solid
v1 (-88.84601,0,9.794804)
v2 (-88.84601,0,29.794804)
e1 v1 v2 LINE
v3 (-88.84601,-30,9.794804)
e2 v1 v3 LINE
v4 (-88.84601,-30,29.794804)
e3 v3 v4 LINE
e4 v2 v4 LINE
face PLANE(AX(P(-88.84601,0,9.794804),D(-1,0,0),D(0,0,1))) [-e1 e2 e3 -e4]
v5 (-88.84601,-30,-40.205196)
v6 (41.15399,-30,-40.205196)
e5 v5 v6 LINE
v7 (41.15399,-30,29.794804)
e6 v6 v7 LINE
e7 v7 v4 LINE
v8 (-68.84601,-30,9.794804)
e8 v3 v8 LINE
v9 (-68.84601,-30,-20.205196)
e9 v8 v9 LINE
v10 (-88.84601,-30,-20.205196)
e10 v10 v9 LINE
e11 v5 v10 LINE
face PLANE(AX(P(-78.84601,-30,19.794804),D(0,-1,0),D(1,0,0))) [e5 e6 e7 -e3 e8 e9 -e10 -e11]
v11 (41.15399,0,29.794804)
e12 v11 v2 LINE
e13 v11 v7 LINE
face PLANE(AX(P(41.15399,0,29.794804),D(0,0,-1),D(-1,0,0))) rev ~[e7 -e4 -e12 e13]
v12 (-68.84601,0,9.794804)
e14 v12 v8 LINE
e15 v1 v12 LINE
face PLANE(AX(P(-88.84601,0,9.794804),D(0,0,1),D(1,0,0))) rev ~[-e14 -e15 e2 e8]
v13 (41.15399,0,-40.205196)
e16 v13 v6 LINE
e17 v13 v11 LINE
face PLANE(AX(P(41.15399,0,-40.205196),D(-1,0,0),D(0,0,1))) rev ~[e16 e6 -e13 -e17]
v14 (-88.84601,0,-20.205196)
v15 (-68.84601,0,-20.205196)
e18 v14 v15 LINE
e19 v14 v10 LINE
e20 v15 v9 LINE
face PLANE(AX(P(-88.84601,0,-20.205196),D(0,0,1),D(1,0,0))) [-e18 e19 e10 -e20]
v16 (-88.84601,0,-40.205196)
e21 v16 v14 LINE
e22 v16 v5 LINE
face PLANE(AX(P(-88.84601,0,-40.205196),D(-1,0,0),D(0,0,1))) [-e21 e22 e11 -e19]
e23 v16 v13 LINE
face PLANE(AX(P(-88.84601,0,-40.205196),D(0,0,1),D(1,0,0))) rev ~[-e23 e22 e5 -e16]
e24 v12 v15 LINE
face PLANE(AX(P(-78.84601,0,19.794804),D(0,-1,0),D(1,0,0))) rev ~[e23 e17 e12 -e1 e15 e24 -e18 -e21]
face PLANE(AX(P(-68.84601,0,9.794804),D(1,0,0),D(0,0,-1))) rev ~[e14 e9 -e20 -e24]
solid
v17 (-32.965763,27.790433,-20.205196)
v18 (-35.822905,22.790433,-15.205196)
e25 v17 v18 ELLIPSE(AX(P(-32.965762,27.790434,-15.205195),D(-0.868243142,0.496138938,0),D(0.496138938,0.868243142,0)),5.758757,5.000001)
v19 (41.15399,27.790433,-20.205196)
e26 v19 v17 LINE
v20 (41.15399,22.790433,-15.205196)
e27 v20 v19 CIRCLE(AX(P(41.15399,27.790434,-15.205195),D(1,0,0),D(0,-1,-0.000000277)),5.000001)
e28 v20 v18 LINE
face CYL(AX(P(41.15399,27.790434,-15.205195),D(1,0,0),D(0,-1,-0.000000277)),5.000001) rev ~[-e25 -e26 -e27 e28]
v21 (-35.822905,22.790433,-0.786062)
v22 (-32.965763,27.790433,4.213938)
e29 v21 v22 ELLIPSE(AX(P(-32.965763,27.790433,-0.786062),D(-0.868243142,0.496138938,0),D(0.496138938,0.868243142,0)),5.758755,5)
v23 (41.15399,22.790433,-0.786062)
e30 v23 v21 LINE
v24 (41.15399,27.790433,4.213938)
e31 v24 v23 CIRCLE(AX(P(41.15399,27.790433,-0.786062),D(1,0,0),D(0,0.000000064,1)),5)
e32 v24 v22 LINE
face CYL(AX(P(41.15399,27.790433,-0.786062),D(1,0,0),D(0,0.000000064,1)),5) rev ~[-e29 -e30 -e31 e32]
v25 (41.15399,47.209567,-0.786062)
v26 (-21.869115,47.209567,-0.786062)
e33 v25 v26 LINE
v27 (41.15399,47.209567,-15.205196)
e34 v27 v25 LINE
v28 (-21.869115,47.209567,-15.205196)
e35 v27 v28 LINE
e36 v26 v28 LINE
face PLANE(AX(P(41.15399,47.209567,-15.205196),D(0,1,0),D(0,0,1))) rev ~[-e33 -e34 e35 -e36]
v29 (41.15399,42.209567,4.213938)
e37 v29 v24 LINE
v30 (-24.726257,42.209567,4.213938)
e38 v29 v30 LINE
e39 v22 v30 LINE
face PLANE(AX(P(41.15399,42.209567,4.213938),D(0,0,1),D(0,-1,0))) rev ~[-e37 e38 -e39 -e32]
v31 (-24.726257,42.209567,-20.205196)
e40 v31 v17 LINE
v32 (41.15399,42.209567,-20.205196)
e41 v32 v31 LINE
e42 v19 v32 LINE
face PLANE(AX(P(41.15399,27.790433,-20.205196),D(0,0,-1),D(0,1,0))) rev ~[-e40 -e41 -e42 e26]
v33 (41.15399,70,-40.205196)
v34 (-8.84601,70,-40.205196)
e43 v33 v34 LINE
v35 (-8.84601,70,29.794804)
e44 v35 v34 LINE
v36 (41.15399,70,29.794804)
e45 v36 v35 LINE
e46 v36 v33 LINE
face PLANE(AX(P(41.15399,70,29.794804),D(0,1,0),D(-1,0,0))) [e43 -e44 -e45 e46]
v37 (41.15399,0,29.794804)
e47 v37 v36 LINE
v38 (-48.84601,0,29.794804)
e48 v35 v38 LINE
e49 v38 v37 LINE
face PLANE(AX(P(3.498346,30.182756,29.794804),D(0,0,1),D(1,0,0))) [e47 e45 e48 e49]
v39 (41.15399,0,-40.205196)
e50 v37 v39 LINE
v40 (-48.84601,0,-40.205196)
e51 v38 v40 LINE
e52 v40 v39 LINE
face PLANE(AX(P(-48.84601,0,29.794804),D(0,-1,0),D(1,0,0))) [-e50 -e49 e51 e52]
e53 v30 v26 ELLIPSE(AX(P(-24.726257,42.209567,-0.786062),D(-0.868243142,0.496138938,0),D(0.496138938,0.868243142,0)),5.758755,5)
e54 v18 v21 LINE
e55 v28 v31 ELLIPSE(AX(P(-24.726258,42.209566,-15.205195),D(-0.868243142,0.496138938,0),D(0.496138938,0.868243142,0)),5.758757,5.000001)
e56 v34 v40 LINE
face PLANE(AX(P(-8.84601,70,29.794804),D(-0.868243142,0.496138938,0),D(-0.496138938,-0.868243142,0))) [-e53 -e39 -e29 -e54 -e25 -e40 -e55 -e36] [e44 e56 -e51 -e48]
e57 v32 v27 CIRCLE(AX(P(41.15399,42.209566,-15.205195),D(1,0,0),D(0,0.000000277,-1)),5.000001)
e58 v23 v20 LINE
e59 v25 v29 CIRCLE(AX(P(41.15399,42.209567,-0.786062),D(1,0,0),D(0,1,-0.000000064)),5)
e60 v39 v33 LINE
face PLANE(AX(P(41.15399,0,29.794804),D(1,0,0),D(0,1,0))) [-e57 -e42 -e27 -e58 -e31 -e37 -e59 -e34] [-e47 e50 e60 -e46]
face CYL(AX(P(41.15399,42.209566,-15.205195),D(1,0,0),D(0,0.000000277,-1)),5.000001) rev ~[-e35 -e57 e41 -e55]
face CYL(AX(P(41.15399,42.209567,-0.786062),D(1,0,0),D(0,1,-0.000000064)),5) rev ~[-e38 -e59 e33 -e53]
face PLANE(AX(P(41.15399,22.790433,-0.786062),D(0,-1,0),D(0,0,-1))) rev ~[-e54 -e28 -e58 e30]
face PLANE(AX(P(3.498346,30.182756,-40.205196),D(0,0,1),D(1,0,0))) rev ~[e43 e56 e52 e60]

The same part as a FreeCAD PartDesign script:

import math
import FreeCAD as App
import Part
import Sketcher


def add_polygon(sketch, points):
    """Adds a closed chain of lines whose ends are joined by coincident constraints."""
    first, n = sketch.GeometryCount, len(points)
    for a, b in zip(points, points[1:] + points[:1]):
        sketch.addGeometry(Part.LineSegment(App.Vector(*a, 0), App.Vector(*b, 0)), False)
    for i in range(n):
        sketch.addConstraint(Sketcher.Constraint("Coincident", first + i, 2, first + (i + 1) % n, 1))

doc = App.newDocument("Part")
params = doc.addObject("Spreadsheet::Sheet", "Params")
for row, (alias, value) in enumerate([
    ("sketch1_width", "20 mm"),
    ("sketch1_width2", "130 mm"),
    ("sketch1_height", "30 mm"),
    ("pad1_length", "30 mm"),
    ("sketch2_width", "90 mm"),
    ("sketch2_width2", "50 mm"),
    ("sketch2_height", "70 mm"),
    ("pad2_length", "70 mm"),
    ("sketch3_radius", "5 mm"),
    ("pocket1_length", "1000 mm"),
], start=1):
    params.set(f"A{row}", alias)
    params.set(f"B{row}", "=" + value)
    params.setAlias(f"B{row}", alias)

body = doc.addObject("PartDesign::Body", "Body")

sketch1 = doc.addObject("Sketcher::SketchObject", "Sketch")
body.addObject(sketch1)
sketch1.AttachmentSupport = (doc.XZ_Plane, [""])
sketch1.MapMode = "FlatFace"
add_polygon(sketch1, [(-89, 30), (-89, 10), (-69, 10), (-69, -20), (-89, -20), (-89, -40), (41, -40), (41, 30)])
sketch1.addConstraint([
    Sketcher.Constraint("Vertical", 0),
    Sketcher.Constraint("Horizontal", 1),
    Sketcher.Constraint("Vertical", 2),
    Sketcher.Constraint("Horizontal", 3),
    Sketcher.Constraint("Vertical", 4),
    Sketcher.Constraint("Horizontal", 5),
    Sketcher.Constraint("Vertical", 6),
    Sketcher.Constraint("Horizontal", 7),
    Sketcher.Constraint("Vertical", 0, 2, 3, 2),
    Sketcher.Constraint("Equal", 3, 0),
    Sketcher.Constraint("Equal", 0, 4),
    Sketcher.Constraint("DistanceX", 1, 1, 1, 2, 20.0),
    Sketcher.Constraint("DistanceX", 5, 1, 5, 2, 130.0),
    Sketcher.Constraint("DistanceY", 2, 2, 2, 1, 30.0),
    Sketcher.Constraint("DistanceX", 0, 2, -1, 1, 88.84601),
    Sketcher.Constraint("DistanceY", -1, 1, 0, 2, 9.794804),
])
sketch1.setExpression("Constraints[19]", "Params.sketch1_width")
sketch1.setExpression("Constraints[20]", "Params.sketch1_width2")
sketch1.setExpression("Constraints[21]", "Params.sketch1_height")
pad1 = doc.addObject("PartDesign::Pad", "Pad")
body.addObject(pad1)
pad1.Profile = sketch1
pad1.setExpression("Length", "Params.pad1_length")
body2 = doc.addObject("PartDesign::Body", "Body001")

sketch2 = doc.addObject("Sketcher::SketchObject", "Sketch001")
body2.addObject(sketch2)
sketch2.AttachmentSupport = (doc.getObject("XY_Plane001"), [""])
sketch2.MapMode = "FlatFace"
sketch2.AttachmentOffset = App.Placement(App.Vector(0, 0, 29.794804), App.Rotation())
add_polygon(sketch2, [(-49, 0), (41, 0), (41, 70), (-9, 70)])
sketch2.addConstraint([
    Sketcher.Constraint("Horizontal", 0),
    Sketcher.Constraint("Vertical", 1),
    Sketcher.Constraint("Horizontal", 2),
    Sketcher.Constraint("PointOnObject", 0, 2, -1),
    Sketcher.Constraint("DistanceX", 0, 1, 0, 2, 90.0),
    Sketcher.Constraint("DistanceX", 2, 2, 2, 1, 50.0),
    Sketcher.Constraint("DistanceY", 1, 1, 1, 2, 70.0),
    Sketcher.Constraint("DistanceX", -1, 1, 0, 2, 41.15399),
])
sketch2.setExpression("Constraints[8]", "Params.sketch2_width")
sketch2.setExpression("Constraints[9]", "Params.sketch2_width2")
sketch2.setExpression("Constraints[10]", "Params.sketch2_height")
pad2 = doc.addObject("PartDesign::Pad", "Pad001")
body2.addObject(pad2)
pad2.Profile = sketch2
pad2.setExpression("Length", "Params.pad2_length")
pad2.Reversed = True

sketch3 = doc.addObject("Sketcher::SketchObject", "Sketch002")
body2.addObject(sketch3)
sketch3.AttachmentSupport = (doc.getObject("YZ_Plane001"), [""])
sketch3.MapMode = "FlatFace"
sketch3.AttachmentOffset = App.Placement(App.Vector(0, 0, 41.15399), App.Rotation())
sketch3.addGeometry([
    Part.ArcOfCircle(Part.Circle(App.Vector(27.8, -0.8, 0), App.Vector(0, 0, 1), 5), math.radians(90), math.radians(180)),
    Part.LineSegment(App.Vector(22.8, -0.8, 0), App.Vector(22.8, -15.2, 0)),
    Part.ArcOfCircle(Part.Circle(App.Vector(27.8, -15.2, 0), App.Vector(0, 0, 1), 5), math.radians(-180), math.radians(-90)),
    Part.LineSegment(App.Vector(27.8, -20.2, 0), App.Vector(42.2, -20.2, 0)),
    Part.ArcOfCircle(Part.Circle(App.Vector(42.2, -15.2, 0), App.Vector(0, 0, 1), 5), math.radians(-90), math.radians(0)),
    Part.LineSegment(App.Vector(47.2, -15.2, 0), App.Vector(47.2, -0.8, 0)),
    Part.ArcOfCircle(Part.Circle(App.Vector(42.2, -0.8, 0), App.Vector(0, 0, 1), 5), math.radians(0), math.radians(90)),
    Part.LineSegment(App.Vector(42.2, 4.2, 0), App.Vector(27.8, 4.2, 0)),
], False)
sketch3.addConstraint([
    Sketcher.Constraint("Tangent", 0, 2, 1, 1),
    Sketcher.Constraint("Tangent", 1, 2, 2, 1),
    Sketcher.Constraint("Tangent", 2, 2, 3, 1),
    Sketcher.Constraint("Tangent", 3, 2, 4, 1),
    Sketcher.Constraint("Tangent", 4, 2, 5, 1),
    Sketcher.Constraint("Tangent", 5, 2, 6, 1),
    Sketcher.Constraint("Tangent", 6, 2, 7, 1),
    Sketcher.Constraint("Tangent", 7, 2, 0, 1),
    Sketcher.Constraint("Vertical", 1),
    Sketcher.Constraint("Horizontal", 3),
    Sketcher.Constraint("Vertical", 5),
    Sketcher.Constraint("Horizontal", 7),
    Sketcher.Constraint("Equal", 0, 2),
    Sketcher.Constraint("Equal", 2, 4),
    Sketcher.Constraint("Equal", 4, 6),
    Sketcher.Constraint("Equal", 7, 1),
    Sketcher.Constraint("Radius", 0, 5.0),
    Sketcher.Constraint("DistanceX", 3, 1, 3, 2, 14.419134),
    Sketcher.Constraint("DistanceY", 0, 3, -1, 1, 0.786062),
    Sketcher.Constraint("DistanceX", -1, 1, 0, 3, 27.790433),
])
sketch3.setExpression("Constraints[16]", "Params.sketch3_radius")
pocket1 = doc.addObject("PartDesign::Pocket", "Pocket")
body2.addObject(pocket1)
pocket1.Profile = sketch3
pocket1.setExpression("Length", "Params.pocket1_length")

doc.recompute()
